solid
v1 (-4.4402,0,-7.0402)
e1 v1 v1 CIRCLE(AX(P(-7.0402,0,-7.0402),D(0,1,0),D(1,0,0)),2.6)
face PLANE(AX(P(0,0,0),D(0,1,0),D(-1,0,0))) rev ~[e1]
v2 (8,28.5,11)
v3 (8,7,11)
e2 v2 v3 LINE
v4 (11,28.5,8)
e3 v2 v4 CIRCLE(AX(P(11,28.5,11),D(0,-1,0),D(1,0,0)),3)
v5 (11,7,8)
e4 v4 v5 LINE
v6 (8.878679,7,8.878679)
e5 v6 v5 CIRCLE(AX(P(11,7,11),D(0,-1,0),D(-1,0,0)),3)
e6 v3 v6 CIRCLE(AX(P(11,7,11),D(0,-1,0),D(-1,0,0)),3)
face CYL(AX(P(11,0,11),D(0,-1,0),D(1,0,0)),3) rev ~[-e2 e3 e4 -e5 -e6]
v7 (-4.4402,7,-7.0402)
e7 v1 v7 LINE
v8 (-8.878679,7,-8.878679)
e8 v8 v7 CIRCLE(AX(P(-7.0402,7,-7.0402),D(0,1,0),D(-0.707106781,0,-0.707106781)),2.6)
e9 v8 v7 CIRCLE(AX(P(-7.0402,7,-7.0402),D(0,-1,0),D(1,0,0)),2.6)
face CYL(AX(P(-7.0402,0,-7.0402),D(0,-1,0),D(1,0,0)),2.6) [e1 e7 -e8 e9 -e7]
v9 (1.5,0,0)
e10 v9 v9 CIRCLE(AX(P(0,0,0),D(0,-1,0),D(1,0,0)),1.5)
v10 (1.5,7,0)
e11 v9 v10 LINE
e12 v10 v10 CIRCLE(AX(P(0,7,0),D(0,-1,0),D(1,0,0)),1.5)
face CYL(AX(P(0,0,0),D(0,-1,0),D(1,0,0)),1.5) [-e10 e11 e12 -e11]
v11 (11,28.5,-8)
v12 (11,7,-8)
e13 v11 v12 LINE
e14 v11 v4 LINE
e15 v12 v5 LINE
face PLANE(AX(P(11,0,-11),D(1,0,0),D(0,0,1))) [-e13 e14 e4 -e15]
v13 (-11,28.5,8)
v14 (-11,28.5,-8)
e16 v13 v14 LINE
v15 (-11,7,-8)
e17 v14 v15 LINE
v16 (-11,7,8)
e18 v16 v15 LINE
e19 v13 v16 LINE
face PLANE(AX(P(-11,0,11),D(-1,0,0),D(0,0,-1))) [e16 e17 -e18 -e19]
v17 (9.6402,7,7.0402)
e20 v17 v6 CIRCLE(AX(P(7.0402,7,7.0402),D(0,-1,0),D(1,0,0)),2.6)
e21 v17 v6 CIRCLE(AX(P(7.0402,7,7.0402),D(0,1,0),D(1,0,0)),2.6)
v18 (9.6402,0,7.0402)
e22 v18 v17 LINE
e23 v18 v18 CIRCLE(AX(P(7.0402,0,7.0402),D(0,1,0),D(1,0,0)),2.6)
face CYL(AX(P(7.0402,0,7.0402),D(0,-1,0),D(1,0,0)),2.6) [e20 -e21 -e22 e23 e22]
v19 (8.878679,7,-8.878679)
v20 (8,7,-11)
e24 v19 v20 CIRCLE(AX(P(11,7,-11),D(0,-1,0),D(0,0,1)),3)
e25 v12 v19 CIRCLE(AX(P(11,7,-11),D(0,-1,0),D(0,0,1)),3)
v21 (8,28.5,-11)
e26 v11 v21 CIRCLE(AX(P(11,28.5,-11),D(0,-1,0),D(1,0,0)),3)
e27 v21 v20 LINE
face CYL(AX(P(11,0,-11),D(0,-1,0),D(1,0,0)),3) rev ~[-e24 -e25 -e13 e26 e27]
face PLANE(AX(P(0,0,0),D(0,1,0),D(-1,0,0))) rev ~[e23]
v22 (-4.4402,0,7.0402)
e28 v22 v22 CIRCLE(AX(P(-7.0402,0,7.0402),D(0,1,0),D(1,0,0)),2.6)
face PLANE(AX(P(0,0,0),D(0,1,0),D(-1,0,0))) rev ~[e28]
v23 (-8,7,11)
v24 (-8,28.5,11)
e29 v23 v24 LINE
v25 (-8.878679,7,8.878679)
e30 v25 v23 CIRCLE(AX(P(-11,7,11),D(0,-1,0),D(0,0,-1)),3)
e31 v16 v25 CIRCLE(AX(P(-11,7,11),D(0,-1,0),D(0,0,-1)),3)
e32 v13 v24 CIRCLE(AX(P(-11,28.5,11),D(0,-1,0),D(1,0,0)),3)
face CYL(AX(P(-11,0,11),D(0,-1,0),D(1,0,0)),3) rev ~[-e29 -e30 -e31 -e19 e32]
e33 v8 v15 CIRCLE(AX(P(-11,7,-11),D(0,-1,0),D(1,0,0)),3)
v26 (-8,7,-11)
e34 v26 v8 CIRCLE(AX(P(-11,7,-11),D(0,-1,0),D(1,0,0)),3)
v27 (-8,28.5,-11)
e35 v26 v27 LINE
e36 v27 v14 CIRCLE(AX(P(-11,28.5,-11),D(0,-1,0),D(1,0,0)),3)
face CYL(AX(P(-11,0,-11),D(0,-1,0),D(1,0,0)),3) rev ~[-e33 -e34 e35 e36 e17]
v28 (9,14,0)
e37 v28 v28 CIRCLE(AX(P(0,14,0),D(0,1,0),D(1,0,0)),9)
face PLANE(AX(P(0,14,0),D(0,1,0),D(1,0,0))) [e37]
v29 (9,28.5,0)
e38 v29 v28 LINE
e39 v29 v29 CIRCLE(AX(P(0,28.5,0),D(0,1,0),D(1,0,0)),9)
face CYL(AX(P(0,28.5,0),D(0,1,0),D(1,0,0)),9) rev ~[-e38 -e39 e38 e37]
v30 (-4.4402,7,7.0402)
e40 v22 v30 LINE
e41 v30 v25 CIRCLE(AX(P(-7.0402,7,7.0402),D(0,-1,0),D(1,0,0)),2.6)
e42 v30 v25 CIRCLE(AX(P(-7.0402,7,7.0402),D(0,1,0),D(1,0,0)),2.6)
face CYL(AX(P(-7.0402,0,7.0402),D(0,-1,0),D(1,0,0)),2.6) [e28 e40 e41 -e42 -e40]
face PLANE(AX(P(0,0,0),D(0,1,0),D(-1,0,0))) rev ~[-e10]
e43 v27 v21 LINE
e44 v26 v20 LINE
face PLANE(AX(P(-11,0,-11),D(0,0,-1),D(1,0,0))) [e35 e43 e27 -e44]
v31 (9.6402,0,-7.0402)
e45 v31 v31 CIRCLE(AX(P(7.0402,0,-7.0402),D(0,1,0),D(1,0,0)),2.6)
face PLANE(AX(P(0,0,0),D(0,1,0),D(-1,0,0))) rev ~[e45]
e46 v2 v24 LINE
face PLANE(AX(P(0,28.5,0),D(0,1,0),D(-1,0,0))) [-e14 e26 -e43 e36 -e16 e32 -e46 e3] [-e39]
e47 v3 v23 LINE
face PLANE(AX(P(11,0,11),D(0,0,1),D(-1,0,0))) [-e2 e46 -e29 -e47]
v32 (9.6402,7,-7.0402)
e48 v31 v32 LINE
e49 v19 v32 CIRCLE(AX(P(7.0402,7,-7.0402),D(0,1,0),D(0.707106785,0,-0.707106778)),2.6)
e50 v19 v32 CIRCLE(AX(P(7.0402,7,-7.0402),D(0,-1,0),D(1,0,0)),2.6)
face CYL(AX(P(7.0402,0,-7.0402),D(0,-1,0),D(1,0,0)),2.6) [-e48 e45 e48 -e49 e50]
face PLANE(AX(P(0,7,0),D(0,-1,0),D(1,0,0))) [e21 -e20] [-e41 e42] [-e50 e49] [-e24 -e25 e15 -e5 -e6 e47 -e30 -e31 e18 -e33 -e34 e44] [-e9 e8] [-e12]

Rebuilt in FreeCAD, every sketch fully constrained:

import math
import FreeCAD as App
import Part
import Sketcher

doc = App.newDocument("Part")
body = doc.addObject("PartDesign::Body", "Body")

sketch1 = doc.addObject("Sketcher::SketchObject", "Sketch")
body.addObject(sketch1)
sketch1.AttachmentSupport = (doc.XZ_Plane, [""])
sketch1.MapMode = "FlatFace"
sketch1.addGeometry([
    Part.LineSegment(App.Vector(-11, 11, 0), App.Vector(11, 11, 0)),
    Part.LineSegment(App.Vector(11, 11, 0), App.Vector(11, -11, 0)),
    Part.LineSegment(App.Vector(11, -11, 0), App.Vector(-11, -11, 0)),
    Part.LineSegment(App.Vector(-11, -11, 0), App.Vector(-11, 11, 0)),
], False)
sketch1.addConstraint([
    Sketcher.Constraint("Coincident", 0, 2, 1, 1),
    Sketcher.Constraint("Coincident", 1, 2, 2, 1),
    Sketcher.Constraint("Coincident", 2, 2, 3, 1),
    Sketcher.Constraint("Coincident", 3, 2, 0, 1),
    Sketcher.Constraint("Horizontal", 0),
    Sketcher.Constraint("Vertical", 1),
    Sketcher.Constraint("Horizontal", 2),
    Sketcher.Constraint("Vertical", 3),
    Sketcher.Constraint("Symmetric", 0, 2, 2, 2, -1, 1),
    Sketcher.Constraint("Equal", 2, 1),
    Sketcher.Constraint("DistanceX", 0, 1, 0, 2, 22.0),
])
pad1 = doc.addObject("PartDesign::Pad", "Pad")
body.addObject(pad1)
pad1.Profile = sketch1
pad1.Length = 28.5
pad1.Reversed = True

sketch2 = doc.addObject("Sketcher::SketchObject", "Sketch001")
body.addObject(sketch2)
sketch2.AttachmentSupport = (doc.XZ_Plane, [""])
sketch2.MapMode = "FlatFace"
sketch2.AttachmentOffset = App.Placement(App.Vector(0, 0, -28.5), App.Rotation())
sketch2.addGeometry(Part.Circle(App.Vector(0, 0, 0), App.Vector(0, 0, 1), 9), False)
sketch2.addConstraint([
    Sketcher.Constraint("Coincident", 0, 3, -1, 1),
    Sketcher.Constraint("Diameter", 0, 18.0),
])
pocket1 = doc.addObject("PartDesign::Pocket", "Pocket")
body.addObject(pocket1)
pocket1.Profile = sketch2
pocket1.Length = 14.5
pocket1.Reversed = True

sketch3 = doc.addObject("Sketcher::SketchObject", "Sketch002")
body.addObject(sketch3)
sketch3.AttachmentSupport = (doc.XZ_Plane, [""])
sketch3.MapMode = "FlatFace"
sketch3.addGeometry([
    Part.Circle(App.Vector(-11, 11, 0), App.Vector(0, 0, 1), 3),
    Part.Circle(App.Vector(11, 11, 0), App.Vector(0, 0, 1), 3),
    Part.Circle(App.Vector(-11, -11, 0), App.Vector(0, 0, 1), 3),
    Part.Circle(App.Vector(11, -11, 0), App.Vector(0, 0, 1), 3),
], False)
sketch3.addConstraint([
    Sketcher.Constraint("Equal", 0, 1),
    Sketcher.Constraint("Equal", 1, 2),
    Sketcher.Constraint("Equal", 2, 3),
    Sketcher.Constraint("Symmetric", 1, 3, 2, 3, -1, 1),
    Sketcher.Constraint("Symmetric", 0, 3, 3, 3, -1, 1),
    Sketcher.Constraint("Symmetric", 0, 3, 1, 3, -2),
    Sketcher.Constraint("Diameter", 0, 6.0),
    Sketcher.Constraint("DistanceX", 0, 3, -1, 1, 11.0),
    Sketcher.Constraint("DistanceY", -1, 1, 0, 3, 11.0),
])
pocket2 = doc.addObject("PartDesign::Pocket", "Pocket001")
body.addObject(pocket2)
pocket2.Profile = sketch3
pocket2.Type = "ThroughAll"

sketch4 = doc.addObject("Sketcher::SketchObject", "Sketch003")
body.addObject(sketch4)
sketch4.AttachmentSupport = (doc.XZ_Plane, [""])
sketch4.MapMode = "FlatFace"
sketch4.addGeometry([
    Part.ArcOfCircle(Part.Circle(App.Vector(-11, 11, 0), App.Vector(0, 0, 1), 3), math.radians(-90), math.radians(-45)),
    Part.LineSegment(App.Vector(-11, 8, 0), App.Vector(-11, -8, 0)),
    Part.ArcOfCircle(Part.Circle(App.Vector(-11, -11, 0), App.Vector(0, 0, 1), 3), math.radians(45), math.radians(90)),
    Part.ArcOfCircle(Part.Circle(App.Vector(-11, -11, 0), App.Vector(0, 0, 1), 3), math.radians(0), math.radians(45)),
    Part.LineSegment(App.Vector(-8, -11, 0), App.Vector(8, -11, 0)),
    Part.ArcOfCircle(Part.Circle(App.Vector(11, -11, 0), App.Vector(0, 0, 1), 3), math.radians(135), math.radians(180)),
    Part.ArcOfCircle(Part.Circle(App.Vector(11, -11, 0), App.Vector(0, 0, 1), 3), math.radians(90), math.radians(135)),
    Part.LineSegment(App.Vector(11, -8, 0), App.Vector(11, 8, 0)),
    Part.ArcOfCircle(Part.Circle(App.Vector(11, 11, 0), App.Vector(0, 0, 1), 3), math.radians(-135), math.radians(-90)),
    Part.ArcOfCircle(Part.Circle(App.Vector(11, 11, 0), App.Vector(0, 0, 1), 3), math.radians(180), math.radians(225)),
    Part.LineSegment(App.Vector(8, 11, 0), App.Vector(-8, 11, 0)),
    Part.ArcOfCircle(Part.Circle(App.Vector(-11, 11, 0), App.Vector(0, 0, 1), 3), math.radians(-45), math.radians(0)),
    Part.Circle(App.Vector(-7, 7, 0), App.Vector(0, 0, 1), 2.6),
    Part.Circle(App.Vector(-7, -7, 0), App.Vector(0, 0, 1), 2.6),
    Part.Circle(App.Vector(7, 7, 0), App.Vector(0, 0, 1), 2.6),
    Part.Circle(App.Vector(7, -7, 0), App.Vector(0, 0, 1), 2.6),
    Part.Circle(App.Vector(0, 0, 0), App.Vector(0, 0, 1), 1.5),
], False)
sketch4.addConstraint([
    Sketcher.Constraint("Coincident", 0, 1, 1, 1),
    Sketcher.Constraint("Coincident", 1, 2, 2, 2),
    Sketcher.Constraint("Tangent", 2, 1, 3, 2),
    Sketcher.Constraint("Coincident", 3, 1, 4, 1),
    Sketcher.Constraint("Coincident", 4, 2, 5, 2),
    Sketcher.Constraint("Tangent", 5, 1, 6, 2),
    Sketcher.Constraint("Coincident", 6, 1, 7, 1),
    Sketcher.Constraint("Coincident", 7, 2, 8, 2),
    Sketcher.Constraint("Tangent", 8, 1, 9, 2),
    Sketcher.Constraint("Coincident", 9, 1, 10, 1),
    Sketcher.Constraint("Coincident", 10, 2, 11, 2),
    Sketcher.Constraint("Tangent", 11, 1, 0, 2),
    Sketcher.Constraint("Vertical", 1),
    Sketcher.Constraint("Horizontal", 4),
    Sketcher.Constraint("Vertical", 7),
    Sketcher.Constraint("Horizontal", 10),
    Sketcher.Constraint("Coincident", 16, 3, -1, 1),
    Sketcher.Constraint("Equal", 0, 2),
    Sketcher.Constraint("Equal", 2, 3),
    Sketcher.Constraint("Equal", 3, 5),
    Sketcher.Constraint("Equal", 5, 6),
    Sketcher.Constraint("Equal", 6, 8),
    Sketcher.Constraint("Equal", 8, 9),
    Sketcher.Constraint("Equal", 9, 11),
    Sketcher.Constraint("Equal", 12, 13),
    Sketcher.Constraint("Equal", 13, 14),
    Sketcher.Constraint("Equal", 14, 15),
    Sketcher.Constraint("Symmetric", 0, 3, 5, 3, -1, 1),
    Sketcher.Constraint("Symmetric", 2, 3, 8, 3, -1, 1),
    Sketcher.Constraint("Symmetric", 13, 3, 14, 3, -1, 1),
    Sketcher.Constraint("Symmetric", 12, 3, 15, 3, -1, 1),
    Sketcher.Constraint("Symmetric", 2, 3, 5, 3, -2),
    Sketcher.Constraint("Symmetric", 12, 3, 14, 3, -2),
    Sketcher.Constraint("Horizontal", 6, 3, 3, 1),
    Sketcher.Constraint("Horizontal", 2, 1, 5, 1),
    Sketcher.Constraint("Horizontal", 11, 3, 9, 1),
    Sketcher.Constraint("Horizontal", 8, 1, 11, 1),
    Sketcher.Constraint("Vertical", 11, 3, 0, 1),
    Sketcher.Constraint("Vertical", 9, 3, 6, 1),
    Sketcher.Constraint("Vertical", 5, 1, 8, 1),
    Sketcher.Constraint("Equal", 10, 1),
    Sketcher.Constraint("Diameter", 16, 3.0),
    Sketcher.Constraint("Radius", 0, 3.0),
    Sketcher.Constraint("Diameter", 12, 5.2),
    Sketcher.Constraint("DistanceX", 4, 1, 4, 2, 16.0),
    Sketcher.Constraint("DistanceY", 13, 3, 12, 3, 14.0804),
    Sketcher.Constraint("DistanceX", 12, 3, 14, 3, 14.0804),
    Sketcher.Constraint("DistanceX", 2, 1, -1, 1, 8.8787),
])
pocket3 = doc.addObject("PartDesign::Pocket", "Pocket002")
body.addObject(pocket3)
pocket3.Profile = sketch4
pocket3.Length = 7

doc.recompute()
